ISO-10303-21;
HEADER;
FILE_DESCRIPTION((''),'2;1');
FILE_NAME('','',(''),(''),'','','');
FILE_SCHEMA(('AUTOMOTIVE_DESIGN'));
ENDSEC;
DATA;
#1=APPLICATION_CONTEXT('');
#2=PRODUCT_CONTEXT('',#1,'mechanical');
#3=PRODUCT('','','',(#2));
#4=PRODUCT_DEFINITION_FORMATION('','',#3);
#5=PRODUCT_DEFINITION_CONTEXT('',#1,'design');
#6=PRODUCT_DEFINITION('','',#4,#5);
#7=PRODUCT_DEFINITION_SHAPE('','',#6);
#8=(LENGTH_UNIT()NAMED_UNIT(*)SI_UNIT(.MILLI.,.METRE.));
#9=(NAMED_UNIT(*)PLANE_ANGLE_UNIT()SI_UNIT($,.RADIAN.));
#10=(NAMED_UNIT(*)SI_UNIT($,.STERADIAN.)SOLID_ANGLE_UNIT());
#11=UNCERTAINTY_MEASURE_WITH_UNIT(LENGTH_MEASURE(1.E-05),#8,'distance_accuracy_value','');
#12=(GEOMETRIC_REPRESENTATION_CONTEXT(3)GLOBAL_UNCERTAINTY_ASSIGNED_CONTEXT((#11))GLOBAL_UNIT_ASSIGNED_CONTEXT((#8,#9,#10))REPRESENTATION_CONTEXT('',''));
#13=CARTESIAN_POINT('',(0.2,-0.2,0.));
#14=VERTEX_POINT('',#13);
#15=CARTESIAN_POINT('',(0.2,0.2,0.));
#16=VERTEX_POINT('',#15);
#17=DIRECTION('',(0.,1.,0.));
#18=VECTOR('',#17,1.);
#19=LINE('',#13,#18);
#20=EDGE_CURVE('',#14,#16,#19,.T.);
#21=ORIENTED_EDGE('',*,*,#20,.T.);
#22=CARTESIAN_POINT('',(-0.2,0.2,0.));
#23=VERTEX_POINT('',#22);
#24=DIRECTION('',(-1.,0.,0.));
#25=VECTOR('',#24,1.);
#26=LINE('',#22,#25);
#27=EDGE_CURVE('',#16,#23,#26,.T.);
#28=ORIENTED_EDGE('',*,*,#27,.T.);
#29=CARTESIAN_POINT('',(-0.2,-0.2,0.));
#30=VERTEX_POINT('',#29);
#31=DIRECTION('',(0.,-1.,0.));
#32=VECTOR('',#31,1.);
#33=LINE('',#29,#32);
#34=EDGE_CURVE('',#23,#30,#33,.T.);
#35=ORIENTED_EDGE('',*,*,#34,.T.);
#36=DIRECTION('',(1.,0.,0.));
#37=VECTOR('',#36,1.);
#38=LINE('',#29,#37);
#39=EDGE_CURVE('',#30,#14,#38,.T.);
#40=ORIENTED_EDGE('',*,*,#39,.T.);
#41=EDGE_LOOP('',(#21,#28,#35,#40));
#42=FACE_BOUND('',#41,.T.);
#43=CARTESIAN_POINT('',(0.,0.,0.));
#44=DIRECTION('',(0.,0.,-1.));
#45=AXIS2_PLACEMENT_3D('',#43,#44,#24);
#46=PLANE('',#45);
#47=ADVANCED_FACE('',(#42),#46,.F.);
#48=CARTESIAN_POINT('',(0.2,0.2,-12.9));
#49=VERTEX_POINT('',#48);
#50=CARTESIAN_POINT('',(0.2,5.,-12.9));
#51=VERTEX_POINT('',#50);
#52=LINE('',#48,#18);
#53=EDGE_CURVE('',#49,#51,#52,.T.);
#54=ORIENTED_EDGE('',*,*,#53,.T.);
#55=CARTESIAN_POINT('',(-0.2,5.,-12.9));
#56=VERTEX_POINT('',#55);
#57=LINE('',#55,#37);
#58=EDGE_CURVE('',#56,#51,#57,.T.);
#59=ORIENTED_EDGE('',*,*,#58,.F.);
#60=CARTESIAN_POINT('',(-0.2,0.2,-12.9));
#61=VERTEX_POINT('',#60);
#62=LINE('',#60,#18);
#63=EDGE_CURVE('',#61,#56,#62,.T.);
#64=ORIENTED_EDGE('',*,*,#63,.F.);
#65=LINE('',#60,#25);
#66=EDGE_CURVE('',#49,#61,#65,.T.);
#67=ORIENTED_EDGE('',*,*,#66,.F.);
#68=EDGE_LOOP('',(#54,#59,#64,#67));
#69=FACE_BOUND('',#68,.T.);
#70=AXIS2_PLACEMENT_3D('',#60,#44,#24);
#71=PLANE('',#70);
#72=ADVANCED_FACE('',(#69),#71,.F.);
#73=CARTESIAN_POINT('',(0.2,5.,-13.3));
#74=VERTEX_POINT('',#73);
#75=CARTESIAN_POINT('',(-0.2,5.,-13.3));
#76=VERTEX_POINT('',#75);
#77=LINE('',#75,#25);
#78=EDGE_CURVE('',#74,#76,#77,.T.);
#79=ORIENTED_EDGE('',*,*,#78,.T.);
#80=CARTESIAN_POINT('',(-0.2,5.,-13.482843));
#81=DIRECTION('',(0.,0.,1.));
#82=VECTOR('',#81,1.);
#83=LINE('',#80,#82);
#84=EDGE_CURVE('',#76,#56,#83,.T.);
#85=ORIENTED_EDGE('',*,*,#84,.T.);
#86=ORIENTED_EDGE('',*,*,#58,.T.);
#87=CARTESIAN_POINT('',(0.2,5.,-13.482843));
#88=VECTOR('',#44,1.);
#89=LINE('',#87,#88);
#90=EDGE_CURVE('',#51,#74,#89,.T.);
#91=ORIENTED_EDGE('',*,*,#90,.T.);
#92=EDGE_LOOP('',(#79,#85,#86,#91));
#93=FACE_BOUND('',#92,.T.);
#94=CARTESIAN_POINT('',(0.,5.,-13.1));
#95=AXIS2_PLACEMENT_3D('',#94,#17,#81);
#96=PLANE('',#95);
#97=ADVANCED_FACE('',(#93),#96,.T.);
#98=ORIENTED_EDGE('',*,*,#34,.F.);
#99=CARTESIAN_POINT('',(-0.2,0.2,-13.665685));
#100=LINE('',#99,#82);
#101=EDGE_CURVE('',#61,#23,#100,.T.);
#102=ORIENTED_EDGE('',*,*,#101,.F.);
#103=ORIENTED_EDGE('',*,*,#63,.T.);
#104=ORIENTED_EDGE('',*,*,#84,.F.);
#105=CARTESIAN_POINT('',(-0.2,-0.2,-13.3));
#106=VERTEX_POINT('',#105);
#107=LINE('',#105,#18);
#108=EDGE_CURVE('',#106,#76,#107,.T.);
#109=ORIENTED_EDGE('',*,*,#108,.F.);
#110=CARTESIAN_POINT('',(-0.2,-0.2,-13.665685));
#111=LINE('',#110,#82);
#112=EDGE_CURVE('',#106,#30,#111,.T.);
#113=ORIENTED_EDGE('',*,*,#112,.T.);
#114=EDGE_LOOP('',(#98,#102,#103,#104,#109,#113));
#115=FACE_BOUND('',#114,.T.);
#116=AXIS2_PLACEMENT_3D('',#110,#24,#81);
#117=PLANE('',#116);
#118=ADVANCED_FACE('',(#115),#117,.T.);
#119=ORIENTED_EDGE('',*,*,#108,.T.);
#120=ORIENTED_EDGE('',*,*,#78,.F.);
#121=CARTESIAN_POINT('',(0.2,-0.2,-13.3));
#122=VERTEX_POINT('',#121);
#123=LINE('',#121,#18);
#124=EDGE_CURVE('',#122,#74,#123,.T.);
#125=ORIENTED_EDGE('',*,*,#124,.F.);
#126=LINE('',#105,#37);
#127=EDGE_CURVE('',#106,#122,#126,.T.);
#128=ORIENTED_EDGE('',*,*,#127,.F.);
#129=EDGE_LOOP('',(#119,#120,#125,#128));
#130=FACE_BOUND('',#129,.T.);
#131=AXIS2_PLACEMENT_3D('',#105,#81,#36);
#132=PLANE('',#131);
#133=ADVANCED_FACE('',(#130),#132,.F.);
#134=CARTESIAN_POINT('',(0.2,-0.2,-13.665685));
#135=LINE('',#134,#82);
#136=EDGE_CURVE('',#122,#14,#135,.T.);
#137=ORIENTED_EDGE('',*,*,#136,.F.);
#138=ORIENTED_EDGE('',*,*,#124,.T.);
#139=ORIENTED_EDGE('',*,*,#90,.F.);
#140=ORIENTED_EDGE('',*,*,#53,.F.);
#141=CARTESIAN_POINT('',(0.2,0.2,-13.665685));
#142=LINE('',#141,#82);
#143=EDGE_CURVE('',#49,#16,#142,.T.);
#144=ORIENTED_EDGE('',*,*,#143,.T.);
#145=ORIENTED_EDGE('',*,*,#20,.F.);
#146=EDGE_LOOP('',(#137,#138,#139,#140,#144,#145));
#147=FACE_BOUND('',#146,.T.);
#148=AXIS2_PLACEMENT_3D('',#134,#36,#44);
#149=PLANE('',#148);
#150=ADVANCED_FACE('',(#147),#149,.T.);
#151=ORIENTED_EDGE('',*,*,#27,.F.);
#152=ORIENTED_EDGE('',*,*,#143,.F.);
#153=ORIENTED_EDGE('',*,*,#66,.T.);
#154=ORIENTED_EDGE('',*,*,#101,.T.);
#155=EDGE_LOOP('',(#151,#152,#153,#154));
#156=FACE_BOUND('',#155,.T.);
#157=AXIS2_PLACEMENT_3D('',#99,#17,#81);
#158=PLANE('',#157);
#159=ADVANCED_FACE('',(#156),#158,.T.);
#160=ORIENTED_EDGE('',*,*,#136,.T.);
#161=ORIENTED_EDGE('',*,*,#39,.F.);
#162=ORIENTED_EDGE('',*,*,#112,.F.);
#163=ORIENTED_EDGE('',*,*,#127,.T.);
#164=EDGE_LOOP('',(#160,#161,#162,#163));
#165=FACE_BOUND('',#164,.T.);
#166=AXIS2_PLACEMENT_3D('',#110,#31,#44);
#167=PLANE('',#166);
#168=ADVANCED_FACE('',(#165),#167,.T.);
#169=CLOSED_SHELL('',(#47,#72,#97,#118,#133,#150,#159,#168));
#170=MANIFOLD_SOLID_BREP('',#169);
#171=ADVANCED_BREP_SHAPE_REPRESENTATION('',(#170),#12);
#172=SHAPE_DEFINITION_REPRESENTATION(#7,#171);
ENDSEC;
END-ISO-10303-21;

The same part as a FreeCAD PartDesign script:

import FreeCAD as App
import Part
import Sketcher
from FreeCAD import Vector
Q = App.Units.Quantity

doc = App.newDocument("Part")
body = doc.addObject("PartDesign::Body", "Body")

sketch1 = body.newObject("Sketcher::SketchObject", "Sketch")
sketch1.AttachmentSupport = (doc.getObject("XY_Plane"), [""])
sketch1.MapMode = "FlatFace"
sketch1.addGeometry([
    Part.LineSegment(Vector(-0.2, 0.2, 0), Vector(-0.2, -0.2, 0)),
    Part.LineSegment(Vector(-0.2, -0.2, 0), Vector(0.2, -0.2, 0)),
    Part.LineSegment(Vector(0.2, -0.2, 0), Vector(0.2, 0.2, 0)),
    Part.LineSegment(Vector(0.2, 0.2, 0), Vector(-0.2, 0.2, 0)),
], False)
sketch1.addConstraint([
    Sketcher.Constraint("Coincident", 0, 2, 1, 1),
    Sketcher.Constraint("Coincident", 1, 2, 2, 1),
    Sketcher.Constraint("Coincident", 2, 2, 3, 1),
    Sketcher.Constraint("Coincident", 3, 2, 0, 1),
    Sketcher.Constraint("Vertical", 0),
    Sketcher.Constraint("Horizontal", 1),
    Sketcher.Constraint("Vertical", 2),
    Sketcher.Constraint("Horizontal", 3),
    Sketcher.Constraint("Symmetric", 0, 2, 2, 2, -1, 1),
    Sketcher.Constraint("Equal", 3, 0),
    Sketcher.Constraint("DistanceX", 1, 1, 1, 2, Q("0.4 mm")),
])

sketch2 = body.newObject("Sketcher::SketchObject", "Sketch001")
sketch2.AttachmentSupport = (doc.getObject("YZ_Plane"), [""])
sketch2.MapMode = "FlatFace"
sketch2.addGeometry([
    Part.LineSegment(Vector(0, 0, 0), Vector(0, -13, 0)),
    Part.LineSegment(Vector(0, -13, 0), Vector(5, -13, 0)),
], False)
sketch2.addConstraint([
    Sketcher.Constraint("Coincident", 0, 2, 1, 1),
    Sketcher.Constraint("Vertical", 0),
    Sketcher.Constraint("Horizontal", 1),
    Sketcher.Constraint("Coincident", 0, 1, -1, 1),
    Sketcher.Constraint("DistanceX", 1, 1, 1, 2, Q("5 mm")),
    Sketcher.Constraint("DistanceY", 0, 2, 0, 1, Q("13.1 mm")),
])
doc.recompute()

additivepipe = body.newObject("PartDesign::AdditivePipe", "AdditivePipe")
additivepipe.Profile = sketch1
additivepipe.Spine = (sketch2, ["Edge1", "Edge2"])
additivepipe.Transition = "Right corner"

doc.recompute()
